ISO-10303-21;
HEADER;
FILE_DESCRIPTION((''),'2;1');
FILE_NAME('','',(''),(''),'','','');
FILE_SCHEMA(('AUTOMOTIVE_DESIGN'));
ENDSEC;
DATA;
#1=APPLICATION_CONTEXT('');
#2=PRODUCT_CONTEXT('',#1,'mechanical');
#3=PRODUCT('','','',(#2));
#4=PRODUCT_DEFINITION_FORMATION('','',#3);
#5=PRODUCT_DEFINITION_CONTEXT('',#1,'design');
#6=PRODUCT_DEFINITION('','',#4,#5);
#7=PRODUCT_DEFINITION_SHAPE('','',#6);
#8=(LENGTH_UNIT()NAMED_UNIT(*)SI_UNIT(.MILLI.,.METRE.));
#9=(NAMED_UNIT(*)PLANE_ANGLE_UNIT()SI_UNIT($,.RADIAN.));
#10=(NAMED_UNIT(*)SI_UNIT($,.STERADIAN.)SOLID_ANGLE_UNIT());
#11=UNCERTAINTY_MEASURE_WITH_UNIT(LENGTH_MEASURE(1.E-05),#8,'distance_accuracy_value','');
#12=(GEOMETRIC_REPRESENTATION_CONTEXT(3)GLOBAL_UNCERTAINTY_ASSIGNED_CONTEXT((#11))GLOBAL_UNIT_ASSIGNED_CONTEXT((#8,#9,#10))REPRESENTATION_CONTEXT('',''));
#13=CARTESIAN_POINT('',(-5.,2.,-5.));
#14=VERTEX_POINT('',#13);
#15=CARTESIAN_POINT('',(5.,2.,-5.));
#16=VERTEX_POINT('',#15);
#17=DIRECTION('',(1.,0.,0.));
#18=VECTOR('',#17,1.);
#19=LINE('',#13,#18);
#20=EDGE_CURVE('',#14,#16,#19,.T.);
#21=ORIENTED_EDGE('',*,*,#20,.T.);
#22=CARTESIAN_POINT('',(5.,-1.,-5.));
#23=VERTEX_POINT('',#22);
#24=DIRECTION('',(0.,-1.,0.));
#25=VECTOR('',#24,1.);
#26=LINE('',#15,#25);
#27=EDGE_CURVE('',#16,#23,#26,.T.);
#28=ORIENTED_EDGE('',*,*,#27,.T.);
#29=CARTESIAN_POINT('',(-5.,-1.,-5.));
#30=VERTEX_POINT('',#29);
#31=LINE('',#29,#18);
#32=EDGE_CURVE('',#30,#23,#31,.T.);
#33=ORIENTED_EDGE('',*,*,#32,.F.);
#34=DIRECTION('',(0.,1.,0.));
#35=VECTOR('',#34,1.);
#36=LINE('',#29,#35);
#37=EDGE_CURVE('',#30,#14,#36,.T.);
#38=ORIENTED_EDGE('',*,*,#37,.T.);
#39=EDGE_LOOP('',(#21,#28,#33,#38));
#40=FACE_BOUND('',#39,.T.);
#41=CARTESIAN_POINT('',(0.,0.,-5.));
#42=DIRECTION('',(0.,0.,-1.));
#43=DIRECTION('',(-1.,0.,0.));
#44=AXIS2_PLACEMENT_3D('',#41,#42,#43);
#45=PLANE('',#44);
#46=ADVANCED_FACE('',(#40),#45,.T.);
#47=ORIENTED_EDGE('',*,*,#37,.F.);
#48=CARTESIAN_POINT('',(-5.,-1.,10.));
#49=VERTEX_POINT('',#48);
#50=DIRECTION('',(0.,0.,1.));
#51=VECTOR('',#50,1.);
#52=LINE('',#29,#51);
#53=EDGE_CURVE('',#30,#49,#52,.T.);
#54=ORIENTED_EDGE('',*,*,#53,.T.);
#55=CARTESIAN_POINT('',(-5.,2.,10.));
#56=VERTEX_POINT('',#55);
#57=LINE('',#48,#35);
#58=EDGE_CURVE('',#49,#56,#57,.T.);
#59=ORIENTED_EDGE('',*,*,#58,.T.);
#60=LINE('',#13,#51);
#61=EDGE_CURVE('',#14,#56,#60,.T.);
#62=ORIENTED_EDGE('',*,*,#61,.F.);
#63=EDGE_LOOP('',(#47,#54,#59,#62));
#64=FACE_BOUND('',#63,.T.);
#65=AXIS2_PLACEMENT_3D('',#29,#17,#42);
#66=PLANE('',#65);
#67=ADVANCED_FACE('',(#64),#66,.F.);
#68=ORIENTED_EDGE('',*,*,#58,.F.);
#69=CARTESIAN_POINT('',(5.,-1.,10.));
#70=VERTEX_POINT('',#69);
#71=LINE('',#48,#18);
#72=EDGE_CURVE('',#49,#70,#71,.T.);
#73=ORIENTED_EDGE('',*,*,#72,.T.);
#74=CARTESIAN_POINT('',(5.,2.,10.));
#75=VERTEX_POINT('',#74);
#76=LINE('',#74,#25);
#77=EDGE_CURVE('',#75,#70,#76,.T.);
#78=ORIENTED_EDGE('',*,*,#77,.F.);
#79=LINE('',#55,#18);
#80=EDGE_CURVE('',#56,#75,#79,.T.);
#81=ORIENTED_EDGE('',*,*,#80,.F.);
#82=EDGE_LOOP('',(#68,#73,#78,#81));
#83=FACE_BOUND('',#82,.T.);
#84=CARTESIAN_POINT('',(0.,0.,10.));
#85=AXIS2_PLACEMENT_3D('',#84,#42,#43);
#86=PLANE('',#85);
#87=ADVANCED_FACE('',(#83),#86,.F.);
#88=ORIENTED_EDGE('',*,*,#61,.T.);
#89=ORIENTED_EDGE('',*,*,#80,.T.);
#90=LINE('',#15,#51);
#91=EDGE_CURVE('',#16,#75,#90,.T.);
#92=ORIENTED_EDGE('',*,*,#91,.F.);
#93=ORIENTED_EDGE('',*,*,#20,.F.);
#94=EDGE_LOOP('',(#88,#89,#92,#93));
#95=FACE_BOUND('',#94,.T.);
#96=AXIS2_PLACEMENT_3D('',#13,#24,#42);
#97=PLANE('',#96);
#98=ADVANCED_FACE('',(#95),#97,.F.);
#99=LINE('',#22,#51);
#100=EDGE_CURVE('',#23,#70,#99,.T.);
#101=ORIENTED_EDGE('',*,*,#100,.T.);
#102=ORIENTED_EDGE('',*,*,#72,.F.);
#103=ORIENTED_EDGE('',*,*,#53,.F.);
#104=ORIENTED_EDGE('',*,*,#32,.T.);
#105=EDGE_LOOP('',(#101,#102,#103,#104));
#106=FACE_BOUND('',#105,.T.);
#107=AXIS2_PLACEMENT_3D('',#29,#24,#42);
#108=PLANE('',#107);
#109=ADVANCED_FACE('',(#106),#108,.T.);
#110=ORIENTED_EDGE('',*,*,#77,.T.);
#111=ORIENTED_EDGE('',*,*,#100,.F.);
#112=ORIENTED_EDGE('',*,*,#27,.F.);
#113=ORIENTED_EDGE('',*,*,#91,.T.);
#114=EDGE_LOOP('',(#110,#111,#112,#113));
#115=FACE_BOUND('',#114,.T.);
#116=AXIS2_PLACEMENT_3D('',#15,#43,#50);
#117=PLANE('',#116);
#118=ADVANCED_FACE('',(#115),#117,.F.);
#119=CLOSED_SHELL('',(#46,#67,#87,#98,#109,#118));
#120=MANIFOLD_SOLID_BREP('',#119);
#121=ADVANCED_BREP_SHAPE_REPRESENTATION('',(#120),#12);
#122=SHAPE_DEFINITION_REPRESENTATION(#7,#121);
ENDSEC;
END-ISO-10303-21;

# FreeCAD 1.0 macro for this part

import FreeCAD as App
import Part
import Sketcher
from FreeCAD import Vector

doc = App.newDocument("Part")
body = doc.addObject("PartDesign::Body", "Body")

sketch1 = body.newObject("Sketcher::SketchObject", "Sketch")
sketch1.AttachmentSupport = (doc.getObject("XY_Plane"), [""])
sketch1.MapMode = "FlatFace"
sketch1.addGeometry([
    Part.LineSegment(Vector(-5, 2, 0), Vector(-5, -1, 0)),
    Part.LineSegment(Vector(-5, -1, 0), Vector(5, -1, 0)),
    Part.LineSegment(Vector(5, -1, 0), Vector(5, 2, 0)),
    Part.LineSegment(Vector(5, 2, 0), Vector(-5, 2, 0)),
], False)
sketch1.addConstraint([
    Sketcher.Constraint("Coincident", 0, 2, 1, 1),
    Sketcher.Constraint("Coincident", 1, 2, 2, 1),
    Sketcher.Constraint("Coincident", 2, 2, 3, 1),
    Sketcher.Constraint("Coincident", 3, 2, 0, 1),
    Sketcher.Constraint("Vertical", 0),
    Sketcher.Constraint("Horizontal", 1),
    Sketcher.Constraint("Vertical", 2),
    Sketcher.Constraint("Horizontal", 3),
    Sketcher.Constraint("DistanceX", 1, 1, 1, 2, 10.0),
    Sketcher.Constraint("DistanceY", 0, 2, 0, 1, 3.0),
    Sketcher.Constraint("DistanceX", 0, 2, -1, 1, 5.0),
    Sketcher.Constraint("DistanceY", 0, 2, -1, 1, 1.0),
])
pad1 = body.newObject("PartDesign::Pad", "Pad")
pad1.Profile = sketch1
pad1.Type = "TwoLengths"
pad1.Length = 10
pad1.Length2 = 5

doc.recompute()
